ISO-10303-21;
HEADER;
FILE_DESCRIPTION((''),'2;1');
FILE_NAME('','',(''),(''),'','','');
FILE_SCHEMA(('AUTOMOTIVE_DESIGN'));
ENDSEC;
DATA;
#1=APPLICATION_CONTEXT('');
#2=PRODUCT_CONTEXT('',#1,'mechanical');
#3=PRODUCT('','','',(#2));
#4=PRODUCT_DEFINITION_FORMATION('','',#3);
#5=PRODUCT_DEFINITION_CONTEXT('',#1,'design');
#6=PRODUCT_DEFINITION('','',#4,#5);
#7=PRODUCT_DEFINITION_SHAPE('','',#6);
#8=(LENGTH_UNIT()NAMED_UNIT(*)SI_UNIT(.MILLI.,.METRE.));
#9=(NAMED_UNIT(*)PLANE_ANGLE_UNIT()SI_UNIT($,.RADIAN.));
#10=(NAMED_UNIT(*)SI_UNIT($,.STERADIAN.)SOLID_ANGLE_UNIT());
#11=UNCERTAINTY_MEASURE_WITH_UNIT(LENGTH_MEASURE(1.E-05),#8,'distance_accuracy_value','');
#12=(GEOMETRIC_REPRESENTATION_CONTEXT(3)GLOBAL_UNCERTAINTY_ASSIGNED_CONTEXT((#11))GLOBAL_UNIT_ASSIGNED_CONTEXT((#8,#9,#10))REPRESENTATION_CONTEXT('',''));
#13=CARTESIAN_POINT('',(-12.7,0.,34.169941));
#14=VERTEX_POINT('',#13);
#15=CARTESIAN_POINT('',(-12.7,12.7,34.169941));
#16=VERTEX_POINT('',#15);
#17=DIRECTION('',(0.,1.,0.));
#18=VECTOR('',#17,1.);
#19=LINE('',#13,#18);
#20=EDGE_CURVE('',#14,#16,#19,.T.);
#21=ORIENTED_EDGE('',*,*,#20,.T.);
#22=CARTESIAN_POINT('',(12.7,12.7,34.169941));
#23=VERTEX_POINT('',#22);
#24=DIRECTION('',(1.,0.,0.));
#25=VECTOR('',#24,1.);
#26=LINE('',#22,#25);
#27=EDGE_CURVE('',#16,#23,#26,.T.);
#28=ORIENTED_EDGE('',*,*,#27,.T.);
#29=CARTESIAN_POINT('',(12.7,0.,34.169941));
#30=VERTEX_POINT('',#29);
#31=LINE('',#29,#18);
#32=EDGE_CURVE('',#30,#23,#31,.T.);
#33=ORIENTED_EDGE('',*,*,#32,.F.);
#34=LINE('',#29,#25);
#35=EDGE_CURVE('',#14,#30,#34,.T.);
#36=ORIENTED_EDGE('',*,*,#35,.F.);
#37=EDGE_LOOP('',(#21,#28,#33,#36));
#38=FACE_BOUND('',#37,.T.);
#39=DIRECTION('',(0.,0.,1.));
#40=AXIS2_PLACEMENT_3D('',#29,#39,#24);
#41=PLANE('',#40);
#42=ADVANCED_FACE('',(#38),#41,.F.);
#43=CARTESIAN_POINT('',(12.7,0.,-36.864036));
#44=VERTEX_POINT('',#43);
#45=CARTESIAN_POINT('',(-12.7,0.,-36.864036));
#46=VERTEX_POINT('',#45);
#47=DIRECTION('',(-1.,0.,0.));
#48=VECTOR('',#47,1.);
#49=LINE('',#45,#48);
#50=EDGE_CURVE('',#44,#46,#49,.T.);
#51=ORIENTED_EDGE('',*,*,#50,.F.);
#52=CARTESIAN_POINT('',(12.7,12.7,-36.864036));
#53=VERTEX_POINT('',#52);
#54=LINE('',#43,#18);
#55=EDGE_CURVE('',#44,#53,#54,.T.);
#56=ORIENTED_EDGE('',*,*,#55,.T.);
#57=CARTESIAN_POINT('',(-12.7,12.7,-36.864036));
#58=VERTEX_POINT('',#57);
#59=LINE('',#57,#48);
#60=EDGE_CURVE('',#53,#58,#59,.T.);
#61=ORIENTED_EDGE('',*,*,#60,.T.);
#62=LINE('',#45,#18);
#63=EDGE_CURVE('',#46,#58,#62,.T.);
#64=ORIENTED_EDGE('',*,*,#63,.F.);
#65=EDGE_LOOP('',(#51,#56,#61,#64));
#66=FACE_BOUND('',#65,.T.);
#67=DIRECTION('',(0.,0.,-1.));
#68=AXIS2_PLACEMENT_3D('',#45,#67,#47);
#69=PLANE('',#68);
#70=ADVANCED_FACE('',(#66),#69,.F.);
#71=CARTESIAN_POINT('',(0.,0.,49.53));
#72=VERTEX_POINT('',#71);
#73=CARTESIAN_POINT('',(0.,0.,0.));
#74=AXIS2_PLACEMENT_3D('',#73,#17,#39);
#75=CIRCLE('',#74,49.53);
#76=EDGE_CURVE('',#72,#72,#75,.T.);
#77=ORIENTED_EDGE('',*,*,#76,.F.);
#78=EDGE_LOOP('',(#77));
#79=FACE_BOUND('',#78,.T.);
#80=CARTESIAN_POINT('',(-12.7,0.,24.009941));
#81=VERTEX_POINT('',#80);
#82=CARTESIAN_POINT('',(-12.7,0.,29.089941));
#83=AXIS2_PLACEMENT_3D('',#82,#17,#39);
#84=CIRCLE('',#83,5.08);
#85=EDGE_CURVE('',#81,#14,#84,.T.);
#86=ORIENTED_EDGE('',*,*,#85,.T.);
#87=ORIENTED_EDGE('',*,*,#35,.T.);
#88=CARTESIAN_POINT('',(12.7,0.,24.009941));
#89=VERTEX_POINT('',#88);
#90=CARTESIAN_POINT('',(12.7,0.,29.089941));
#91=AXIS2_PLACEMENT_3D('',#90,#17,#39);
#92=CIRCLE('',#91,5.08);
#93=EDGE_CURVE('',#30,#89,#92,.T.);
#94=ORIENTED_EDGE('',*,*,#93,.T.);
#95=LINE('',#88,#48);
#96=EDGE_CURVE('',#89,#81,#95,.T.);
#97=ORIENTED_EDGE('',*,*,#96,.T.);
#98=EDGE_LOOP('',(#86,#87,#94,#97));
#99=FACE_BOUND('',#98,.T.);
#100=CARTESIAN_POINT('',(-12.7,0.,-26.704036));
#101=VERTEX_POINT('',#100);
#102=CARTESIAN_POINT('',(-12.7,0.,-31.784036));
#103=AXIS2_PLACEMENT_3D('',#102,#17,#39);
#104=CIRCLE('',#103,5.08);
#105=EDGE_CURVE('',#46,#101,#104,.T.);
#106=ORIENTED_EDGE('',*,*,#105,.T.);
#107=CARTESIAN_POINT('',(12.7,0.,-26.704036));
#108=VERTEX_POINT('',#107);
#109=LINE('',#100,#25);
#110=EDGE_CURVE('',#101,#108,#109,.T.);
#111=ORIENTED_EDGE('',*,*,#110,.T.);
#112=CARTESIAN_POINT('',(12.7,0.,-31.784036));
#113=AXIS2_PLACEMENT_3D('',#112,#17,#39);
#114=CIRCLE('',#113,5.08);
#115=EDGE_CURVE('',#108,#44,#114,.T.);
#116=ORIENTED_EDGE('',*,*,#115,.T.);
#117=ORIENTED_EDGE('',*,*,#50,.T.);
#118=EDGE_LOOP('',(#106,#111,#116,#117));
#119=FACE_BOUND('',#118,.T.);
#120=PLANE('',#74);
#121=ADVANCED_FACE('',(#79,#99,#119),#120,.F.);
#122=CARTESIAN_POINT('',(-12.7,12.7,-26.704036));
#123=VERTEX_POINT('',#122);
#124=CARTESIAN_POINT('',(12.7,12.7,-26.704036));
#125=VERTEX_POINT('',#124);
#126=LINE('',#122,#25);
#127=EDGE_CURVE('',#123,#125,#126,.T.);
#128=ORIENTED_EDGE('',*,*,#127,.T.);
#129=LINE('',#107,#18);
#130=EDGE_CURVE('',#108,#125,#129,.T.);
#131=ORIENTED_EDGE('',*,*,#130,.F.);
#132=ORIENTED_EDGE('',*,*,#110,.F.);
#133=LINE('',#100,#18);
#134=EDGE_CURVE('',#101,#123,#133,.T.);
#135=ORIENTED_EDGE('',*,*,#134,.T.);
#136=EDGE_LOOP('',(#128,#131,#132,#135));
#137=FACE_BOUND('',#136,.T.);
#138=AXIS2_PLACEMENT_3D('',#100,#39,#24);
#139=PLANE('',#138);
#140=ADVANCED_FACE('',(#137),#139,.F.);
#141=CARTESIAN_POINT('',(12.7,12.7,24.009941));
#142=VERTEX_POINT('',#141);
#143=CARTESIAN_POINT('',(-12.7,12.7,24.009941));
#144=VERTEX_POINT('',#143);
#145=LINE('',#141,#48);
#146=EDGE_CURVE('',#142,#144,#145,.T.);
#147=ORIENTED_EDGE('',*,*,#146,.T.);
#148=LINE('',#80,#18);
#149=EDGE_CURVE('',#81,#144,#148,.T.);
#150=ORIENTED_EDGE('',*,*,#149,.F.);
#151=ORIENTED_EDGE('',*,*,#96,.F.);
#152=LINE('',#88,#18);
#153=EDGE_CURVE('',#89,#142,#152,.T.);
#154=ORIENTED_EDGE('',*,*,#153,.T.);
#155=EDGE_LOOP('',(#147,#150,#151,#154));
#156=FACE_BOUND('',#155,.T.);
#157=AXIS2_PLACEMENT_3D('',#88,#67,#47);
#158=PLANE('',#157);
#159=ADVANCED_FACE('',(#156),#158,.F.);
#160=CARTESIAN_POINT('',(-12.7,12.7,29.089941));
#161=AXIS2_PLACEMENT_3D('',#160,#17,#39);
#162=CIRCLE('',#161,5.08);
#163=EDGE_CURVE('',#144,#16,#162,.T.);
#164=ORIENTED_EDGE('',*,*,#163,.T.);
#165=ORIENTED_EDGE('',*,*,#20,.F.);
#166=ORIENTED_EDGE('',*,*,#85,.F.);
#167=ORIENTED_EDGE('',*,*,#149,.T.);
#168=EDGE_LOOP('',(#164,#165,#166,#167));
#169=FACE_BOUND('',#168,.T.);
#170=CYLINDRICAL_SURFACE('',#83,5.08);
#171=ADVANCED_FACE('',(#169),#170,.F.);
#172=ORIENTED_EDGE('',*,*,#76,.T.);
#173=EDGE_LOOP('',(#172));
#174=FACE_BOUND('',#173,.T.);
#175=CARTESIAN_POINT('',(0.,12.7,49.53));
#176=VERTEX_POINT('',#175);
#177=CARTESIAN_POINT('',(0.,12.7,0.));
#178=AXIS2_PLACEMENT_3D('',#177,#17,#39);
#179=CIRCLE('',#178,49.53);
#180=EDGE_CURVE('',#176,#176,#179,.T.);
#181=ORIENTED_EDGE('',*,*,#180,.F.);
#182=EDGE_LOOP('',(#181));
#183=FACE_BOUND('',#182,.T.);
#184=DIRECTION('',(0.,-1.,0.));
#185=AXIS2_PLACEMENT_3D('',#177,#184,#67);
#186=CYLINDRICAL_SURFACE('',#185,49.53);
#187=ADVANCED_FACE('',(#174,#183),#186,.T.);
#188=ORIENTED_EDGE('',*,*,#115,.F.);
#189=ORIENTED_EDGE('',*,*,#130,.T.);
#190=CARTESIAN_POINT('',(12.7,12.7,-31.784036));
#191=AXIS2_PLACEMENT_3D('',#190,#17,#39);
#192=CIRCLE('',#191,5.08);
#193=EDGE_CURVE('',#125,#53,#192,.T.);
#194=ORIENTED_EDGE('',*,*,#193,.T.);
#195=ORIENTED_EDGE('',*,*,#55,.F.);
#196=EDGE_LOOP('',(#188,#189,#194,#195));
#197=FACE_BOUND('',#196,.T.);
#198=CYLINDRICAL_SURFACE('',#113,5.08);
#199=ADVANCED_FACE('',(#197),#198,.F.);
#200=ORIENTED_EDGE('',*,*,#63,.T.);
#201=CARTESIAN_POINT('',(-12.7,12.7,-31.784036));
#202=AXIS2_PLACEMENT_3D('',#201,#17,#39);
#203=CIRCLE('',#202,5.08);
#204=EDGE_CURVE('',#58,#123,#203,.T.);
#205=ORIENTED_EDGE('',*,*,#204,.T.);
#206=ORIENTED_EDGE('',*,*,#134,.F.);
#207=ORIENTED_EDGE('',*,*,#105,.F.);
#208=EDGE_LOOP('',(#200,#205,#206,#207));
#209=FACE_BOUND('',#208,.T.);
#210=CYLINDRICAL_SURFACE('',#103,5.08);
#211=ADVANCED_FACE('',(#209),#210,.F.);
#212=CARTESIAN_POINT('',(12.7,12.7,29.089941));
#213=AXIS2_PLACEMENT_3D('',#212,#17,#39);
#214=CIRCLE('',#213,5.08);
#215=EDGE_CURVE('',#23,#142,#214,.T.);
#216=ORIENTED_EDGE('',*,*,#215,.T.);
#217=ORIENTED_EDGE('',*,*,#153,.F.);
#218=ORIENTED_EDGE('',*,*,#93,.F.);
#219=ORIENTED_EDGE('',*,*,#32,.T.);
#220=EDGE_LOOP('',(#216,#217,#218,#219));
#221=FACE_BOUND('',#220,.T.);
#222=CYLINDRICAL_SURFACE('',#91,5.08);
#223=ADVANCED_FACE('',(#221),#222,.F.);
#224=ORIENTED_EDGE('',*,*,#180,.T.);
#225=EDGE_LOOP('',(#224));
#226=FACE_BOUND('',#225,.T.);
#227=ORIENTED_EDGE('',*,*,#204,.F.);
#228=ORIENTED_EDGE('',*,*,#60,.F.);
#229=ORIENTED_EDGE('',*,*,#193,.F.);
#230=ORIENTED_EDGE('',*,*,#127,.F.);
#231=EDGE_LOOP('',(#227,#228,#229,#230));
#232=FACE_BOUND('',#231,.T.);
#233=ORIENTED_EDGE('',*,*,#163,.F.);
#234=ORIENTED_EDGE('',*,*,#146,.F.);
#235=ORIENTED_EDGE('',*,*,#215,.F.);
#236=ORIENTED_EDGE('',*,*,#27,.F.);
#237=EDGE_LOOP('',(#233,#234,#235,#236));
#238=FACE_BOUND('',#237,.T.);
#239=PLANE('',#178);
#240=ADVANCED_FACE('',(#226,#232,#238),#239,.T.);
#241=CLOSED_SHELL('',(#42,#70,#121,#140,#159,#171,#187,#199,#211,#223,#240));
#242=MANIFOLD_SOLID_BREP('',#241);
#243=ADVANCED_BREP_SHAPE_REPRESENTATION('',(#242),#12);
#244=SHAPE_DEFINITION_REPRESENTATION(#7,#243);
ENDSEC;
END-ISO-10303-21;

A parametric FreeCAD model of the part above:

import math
import FreeCAD as App
import Part
import Sketcher
Q = App.Units.Quantity

doc = App.newDocument("Part")
body = doc.addObject("PartDesign::Body", "Body")

# Sketch on XZ plane
sketch1 = body.newObject("Sketcher::SketchObject", "Sketch")
sketch1.AttachmentSupport = (doc.getObject("XZ_Plane"), [""])
sketch1.MapMode = "FlatFace"
sketch1.addGeometry(Part.Circle(App.Vector(0, 0, 0), App.Vector(0, 0, 1), 49.53), False)
sketch1.addConstraint([
    Sketcher.Constraint("Coincident", 0, 3, -1, 1),
    Sketcher.Constraint("Diameter", 0, Q("3.9 in")),
])
pad1 = body.newObject("PartDesign::Pad", "Pad")
pad1.Profile = sketch1
pad1.Length = Q("0.5 in")
pad1.Reversed = True

# Sketch on XZ plane
sketch2 = body.newObject("Sketcher::SketchObject", "Sketch001")
sketch2.AttachmentSupport = (doc.getObject("XZ_Plane"), [""])
sketch2.MapMode = "FlatFace"
sketch2.AttachmentOffset = App.Placement(App.Vector(0, 0, -0.5 * 25.4), App.Rotation())
sketch2.addGeometry([
    Part.LineSegment(App.Vector(-12.7, 34.169941, 0), App.Vector(12.7, 34.169941, 0)),  # 0
    Part.ArcOfCircle(Part.Circle(App.Vector(12.7, 29.089941, 0), App.Vector(0, 0, 1), 5.08), math.radians(-90), math.radians(90)),  # 1
    Part.LineSegment(App.Vector(12.7, 24.009941, 0), App.Vector(-12.7, 24.009941, 0)),  # 2
    Part.ArcOfCircle(Part.Circle(App.Vector(-12.7, 29.089941, 0), App.Vector(0, 0, 1), 5.08), math.radians(90), math.radians(270)),  # 3
    Part.LineSegment(App.Vector(12.7, -36.864036, 0), App.Vector(-12.7, -36.864036, 0)),  # 4
    Part.ArcOfCircle(Part.Circle(App.Vector(-12.7, -31.784036, 0), App.Vector(0, 0, 1), 5.08), math.radians(90), math.radians(270)),  # 5
    Part.LineSegment(App.Vector(-12.7, -26.704036, 0), App.Vector(12.7, -26.704036, 0)),  # 6
    Part.ArcOfCircle(Part.Circle(App.Vector(12.7, -31.784036, 0), App.Vector(0, 0, 1), 5.08), math.radians(-90), math.radians(90)),  # 7
], False)
sketch2.addConstraint([
    Sketcher.Constraint("Tangent", 0, 2, 1, 2),
    Sketcher.Constraint("Tangent", 1, 1, 2, 1),
    Sketcher.Constraint("Tangent", 2, 2, 3, 2),
    Sketcher.Constraint("Tangent", 3, 1, 0, 1),
    Sketcher.Constraint("Tangent", 4, 2, 5, 2),
    Sketcher.Constraint("Tangent", 5, 1, 6, 1),
    Sketcher.Constraint("Tangent", 6, 2, 7, 2),
    Sketcher.Constraint("Tangent", 7, 1, 4, 1),
    Sketcher.Constraint("Horizontal", 0),
    Sketcher.Constraint("Horizontal", 2),
    Sketcher.Constraint("Horizontal", 4),
    Sketcher.Constraint("Horizontal", 6),
    Sketcher.Constraint("Equal", 3, 5),
    Sketcher.Constraint("Vertical", 3, 3, 5, 3),
    Sketcher.Constraint("Vertical", 1, 3, 7, 3),
    Sketcher.Constraint("Radius", 1, Q("0.2 in")),
    Sketcher.Constraint("DistanceX", 0, 1, 0, 2, Q("1 in")),
    Sketcher.Constraint("DistanceX", -1, 1, 1, 3, Q("0.5 in")),
    Sketcher.Constraint("DistanceY", -1, 1, 1, 3, Q("29.089941 mm")),
    Sketcher.Constraint("DistanceY", 5, 3, -1, 1, Q("31.784036 mm")),
])
pocket1 = body.newObject("PartDesign::Pocket", "Pocket")
pocket1.Profile = sketch2
pocket1.Type = "ThroughAll"
pocket1.Reversed = True

doc.recompute()
